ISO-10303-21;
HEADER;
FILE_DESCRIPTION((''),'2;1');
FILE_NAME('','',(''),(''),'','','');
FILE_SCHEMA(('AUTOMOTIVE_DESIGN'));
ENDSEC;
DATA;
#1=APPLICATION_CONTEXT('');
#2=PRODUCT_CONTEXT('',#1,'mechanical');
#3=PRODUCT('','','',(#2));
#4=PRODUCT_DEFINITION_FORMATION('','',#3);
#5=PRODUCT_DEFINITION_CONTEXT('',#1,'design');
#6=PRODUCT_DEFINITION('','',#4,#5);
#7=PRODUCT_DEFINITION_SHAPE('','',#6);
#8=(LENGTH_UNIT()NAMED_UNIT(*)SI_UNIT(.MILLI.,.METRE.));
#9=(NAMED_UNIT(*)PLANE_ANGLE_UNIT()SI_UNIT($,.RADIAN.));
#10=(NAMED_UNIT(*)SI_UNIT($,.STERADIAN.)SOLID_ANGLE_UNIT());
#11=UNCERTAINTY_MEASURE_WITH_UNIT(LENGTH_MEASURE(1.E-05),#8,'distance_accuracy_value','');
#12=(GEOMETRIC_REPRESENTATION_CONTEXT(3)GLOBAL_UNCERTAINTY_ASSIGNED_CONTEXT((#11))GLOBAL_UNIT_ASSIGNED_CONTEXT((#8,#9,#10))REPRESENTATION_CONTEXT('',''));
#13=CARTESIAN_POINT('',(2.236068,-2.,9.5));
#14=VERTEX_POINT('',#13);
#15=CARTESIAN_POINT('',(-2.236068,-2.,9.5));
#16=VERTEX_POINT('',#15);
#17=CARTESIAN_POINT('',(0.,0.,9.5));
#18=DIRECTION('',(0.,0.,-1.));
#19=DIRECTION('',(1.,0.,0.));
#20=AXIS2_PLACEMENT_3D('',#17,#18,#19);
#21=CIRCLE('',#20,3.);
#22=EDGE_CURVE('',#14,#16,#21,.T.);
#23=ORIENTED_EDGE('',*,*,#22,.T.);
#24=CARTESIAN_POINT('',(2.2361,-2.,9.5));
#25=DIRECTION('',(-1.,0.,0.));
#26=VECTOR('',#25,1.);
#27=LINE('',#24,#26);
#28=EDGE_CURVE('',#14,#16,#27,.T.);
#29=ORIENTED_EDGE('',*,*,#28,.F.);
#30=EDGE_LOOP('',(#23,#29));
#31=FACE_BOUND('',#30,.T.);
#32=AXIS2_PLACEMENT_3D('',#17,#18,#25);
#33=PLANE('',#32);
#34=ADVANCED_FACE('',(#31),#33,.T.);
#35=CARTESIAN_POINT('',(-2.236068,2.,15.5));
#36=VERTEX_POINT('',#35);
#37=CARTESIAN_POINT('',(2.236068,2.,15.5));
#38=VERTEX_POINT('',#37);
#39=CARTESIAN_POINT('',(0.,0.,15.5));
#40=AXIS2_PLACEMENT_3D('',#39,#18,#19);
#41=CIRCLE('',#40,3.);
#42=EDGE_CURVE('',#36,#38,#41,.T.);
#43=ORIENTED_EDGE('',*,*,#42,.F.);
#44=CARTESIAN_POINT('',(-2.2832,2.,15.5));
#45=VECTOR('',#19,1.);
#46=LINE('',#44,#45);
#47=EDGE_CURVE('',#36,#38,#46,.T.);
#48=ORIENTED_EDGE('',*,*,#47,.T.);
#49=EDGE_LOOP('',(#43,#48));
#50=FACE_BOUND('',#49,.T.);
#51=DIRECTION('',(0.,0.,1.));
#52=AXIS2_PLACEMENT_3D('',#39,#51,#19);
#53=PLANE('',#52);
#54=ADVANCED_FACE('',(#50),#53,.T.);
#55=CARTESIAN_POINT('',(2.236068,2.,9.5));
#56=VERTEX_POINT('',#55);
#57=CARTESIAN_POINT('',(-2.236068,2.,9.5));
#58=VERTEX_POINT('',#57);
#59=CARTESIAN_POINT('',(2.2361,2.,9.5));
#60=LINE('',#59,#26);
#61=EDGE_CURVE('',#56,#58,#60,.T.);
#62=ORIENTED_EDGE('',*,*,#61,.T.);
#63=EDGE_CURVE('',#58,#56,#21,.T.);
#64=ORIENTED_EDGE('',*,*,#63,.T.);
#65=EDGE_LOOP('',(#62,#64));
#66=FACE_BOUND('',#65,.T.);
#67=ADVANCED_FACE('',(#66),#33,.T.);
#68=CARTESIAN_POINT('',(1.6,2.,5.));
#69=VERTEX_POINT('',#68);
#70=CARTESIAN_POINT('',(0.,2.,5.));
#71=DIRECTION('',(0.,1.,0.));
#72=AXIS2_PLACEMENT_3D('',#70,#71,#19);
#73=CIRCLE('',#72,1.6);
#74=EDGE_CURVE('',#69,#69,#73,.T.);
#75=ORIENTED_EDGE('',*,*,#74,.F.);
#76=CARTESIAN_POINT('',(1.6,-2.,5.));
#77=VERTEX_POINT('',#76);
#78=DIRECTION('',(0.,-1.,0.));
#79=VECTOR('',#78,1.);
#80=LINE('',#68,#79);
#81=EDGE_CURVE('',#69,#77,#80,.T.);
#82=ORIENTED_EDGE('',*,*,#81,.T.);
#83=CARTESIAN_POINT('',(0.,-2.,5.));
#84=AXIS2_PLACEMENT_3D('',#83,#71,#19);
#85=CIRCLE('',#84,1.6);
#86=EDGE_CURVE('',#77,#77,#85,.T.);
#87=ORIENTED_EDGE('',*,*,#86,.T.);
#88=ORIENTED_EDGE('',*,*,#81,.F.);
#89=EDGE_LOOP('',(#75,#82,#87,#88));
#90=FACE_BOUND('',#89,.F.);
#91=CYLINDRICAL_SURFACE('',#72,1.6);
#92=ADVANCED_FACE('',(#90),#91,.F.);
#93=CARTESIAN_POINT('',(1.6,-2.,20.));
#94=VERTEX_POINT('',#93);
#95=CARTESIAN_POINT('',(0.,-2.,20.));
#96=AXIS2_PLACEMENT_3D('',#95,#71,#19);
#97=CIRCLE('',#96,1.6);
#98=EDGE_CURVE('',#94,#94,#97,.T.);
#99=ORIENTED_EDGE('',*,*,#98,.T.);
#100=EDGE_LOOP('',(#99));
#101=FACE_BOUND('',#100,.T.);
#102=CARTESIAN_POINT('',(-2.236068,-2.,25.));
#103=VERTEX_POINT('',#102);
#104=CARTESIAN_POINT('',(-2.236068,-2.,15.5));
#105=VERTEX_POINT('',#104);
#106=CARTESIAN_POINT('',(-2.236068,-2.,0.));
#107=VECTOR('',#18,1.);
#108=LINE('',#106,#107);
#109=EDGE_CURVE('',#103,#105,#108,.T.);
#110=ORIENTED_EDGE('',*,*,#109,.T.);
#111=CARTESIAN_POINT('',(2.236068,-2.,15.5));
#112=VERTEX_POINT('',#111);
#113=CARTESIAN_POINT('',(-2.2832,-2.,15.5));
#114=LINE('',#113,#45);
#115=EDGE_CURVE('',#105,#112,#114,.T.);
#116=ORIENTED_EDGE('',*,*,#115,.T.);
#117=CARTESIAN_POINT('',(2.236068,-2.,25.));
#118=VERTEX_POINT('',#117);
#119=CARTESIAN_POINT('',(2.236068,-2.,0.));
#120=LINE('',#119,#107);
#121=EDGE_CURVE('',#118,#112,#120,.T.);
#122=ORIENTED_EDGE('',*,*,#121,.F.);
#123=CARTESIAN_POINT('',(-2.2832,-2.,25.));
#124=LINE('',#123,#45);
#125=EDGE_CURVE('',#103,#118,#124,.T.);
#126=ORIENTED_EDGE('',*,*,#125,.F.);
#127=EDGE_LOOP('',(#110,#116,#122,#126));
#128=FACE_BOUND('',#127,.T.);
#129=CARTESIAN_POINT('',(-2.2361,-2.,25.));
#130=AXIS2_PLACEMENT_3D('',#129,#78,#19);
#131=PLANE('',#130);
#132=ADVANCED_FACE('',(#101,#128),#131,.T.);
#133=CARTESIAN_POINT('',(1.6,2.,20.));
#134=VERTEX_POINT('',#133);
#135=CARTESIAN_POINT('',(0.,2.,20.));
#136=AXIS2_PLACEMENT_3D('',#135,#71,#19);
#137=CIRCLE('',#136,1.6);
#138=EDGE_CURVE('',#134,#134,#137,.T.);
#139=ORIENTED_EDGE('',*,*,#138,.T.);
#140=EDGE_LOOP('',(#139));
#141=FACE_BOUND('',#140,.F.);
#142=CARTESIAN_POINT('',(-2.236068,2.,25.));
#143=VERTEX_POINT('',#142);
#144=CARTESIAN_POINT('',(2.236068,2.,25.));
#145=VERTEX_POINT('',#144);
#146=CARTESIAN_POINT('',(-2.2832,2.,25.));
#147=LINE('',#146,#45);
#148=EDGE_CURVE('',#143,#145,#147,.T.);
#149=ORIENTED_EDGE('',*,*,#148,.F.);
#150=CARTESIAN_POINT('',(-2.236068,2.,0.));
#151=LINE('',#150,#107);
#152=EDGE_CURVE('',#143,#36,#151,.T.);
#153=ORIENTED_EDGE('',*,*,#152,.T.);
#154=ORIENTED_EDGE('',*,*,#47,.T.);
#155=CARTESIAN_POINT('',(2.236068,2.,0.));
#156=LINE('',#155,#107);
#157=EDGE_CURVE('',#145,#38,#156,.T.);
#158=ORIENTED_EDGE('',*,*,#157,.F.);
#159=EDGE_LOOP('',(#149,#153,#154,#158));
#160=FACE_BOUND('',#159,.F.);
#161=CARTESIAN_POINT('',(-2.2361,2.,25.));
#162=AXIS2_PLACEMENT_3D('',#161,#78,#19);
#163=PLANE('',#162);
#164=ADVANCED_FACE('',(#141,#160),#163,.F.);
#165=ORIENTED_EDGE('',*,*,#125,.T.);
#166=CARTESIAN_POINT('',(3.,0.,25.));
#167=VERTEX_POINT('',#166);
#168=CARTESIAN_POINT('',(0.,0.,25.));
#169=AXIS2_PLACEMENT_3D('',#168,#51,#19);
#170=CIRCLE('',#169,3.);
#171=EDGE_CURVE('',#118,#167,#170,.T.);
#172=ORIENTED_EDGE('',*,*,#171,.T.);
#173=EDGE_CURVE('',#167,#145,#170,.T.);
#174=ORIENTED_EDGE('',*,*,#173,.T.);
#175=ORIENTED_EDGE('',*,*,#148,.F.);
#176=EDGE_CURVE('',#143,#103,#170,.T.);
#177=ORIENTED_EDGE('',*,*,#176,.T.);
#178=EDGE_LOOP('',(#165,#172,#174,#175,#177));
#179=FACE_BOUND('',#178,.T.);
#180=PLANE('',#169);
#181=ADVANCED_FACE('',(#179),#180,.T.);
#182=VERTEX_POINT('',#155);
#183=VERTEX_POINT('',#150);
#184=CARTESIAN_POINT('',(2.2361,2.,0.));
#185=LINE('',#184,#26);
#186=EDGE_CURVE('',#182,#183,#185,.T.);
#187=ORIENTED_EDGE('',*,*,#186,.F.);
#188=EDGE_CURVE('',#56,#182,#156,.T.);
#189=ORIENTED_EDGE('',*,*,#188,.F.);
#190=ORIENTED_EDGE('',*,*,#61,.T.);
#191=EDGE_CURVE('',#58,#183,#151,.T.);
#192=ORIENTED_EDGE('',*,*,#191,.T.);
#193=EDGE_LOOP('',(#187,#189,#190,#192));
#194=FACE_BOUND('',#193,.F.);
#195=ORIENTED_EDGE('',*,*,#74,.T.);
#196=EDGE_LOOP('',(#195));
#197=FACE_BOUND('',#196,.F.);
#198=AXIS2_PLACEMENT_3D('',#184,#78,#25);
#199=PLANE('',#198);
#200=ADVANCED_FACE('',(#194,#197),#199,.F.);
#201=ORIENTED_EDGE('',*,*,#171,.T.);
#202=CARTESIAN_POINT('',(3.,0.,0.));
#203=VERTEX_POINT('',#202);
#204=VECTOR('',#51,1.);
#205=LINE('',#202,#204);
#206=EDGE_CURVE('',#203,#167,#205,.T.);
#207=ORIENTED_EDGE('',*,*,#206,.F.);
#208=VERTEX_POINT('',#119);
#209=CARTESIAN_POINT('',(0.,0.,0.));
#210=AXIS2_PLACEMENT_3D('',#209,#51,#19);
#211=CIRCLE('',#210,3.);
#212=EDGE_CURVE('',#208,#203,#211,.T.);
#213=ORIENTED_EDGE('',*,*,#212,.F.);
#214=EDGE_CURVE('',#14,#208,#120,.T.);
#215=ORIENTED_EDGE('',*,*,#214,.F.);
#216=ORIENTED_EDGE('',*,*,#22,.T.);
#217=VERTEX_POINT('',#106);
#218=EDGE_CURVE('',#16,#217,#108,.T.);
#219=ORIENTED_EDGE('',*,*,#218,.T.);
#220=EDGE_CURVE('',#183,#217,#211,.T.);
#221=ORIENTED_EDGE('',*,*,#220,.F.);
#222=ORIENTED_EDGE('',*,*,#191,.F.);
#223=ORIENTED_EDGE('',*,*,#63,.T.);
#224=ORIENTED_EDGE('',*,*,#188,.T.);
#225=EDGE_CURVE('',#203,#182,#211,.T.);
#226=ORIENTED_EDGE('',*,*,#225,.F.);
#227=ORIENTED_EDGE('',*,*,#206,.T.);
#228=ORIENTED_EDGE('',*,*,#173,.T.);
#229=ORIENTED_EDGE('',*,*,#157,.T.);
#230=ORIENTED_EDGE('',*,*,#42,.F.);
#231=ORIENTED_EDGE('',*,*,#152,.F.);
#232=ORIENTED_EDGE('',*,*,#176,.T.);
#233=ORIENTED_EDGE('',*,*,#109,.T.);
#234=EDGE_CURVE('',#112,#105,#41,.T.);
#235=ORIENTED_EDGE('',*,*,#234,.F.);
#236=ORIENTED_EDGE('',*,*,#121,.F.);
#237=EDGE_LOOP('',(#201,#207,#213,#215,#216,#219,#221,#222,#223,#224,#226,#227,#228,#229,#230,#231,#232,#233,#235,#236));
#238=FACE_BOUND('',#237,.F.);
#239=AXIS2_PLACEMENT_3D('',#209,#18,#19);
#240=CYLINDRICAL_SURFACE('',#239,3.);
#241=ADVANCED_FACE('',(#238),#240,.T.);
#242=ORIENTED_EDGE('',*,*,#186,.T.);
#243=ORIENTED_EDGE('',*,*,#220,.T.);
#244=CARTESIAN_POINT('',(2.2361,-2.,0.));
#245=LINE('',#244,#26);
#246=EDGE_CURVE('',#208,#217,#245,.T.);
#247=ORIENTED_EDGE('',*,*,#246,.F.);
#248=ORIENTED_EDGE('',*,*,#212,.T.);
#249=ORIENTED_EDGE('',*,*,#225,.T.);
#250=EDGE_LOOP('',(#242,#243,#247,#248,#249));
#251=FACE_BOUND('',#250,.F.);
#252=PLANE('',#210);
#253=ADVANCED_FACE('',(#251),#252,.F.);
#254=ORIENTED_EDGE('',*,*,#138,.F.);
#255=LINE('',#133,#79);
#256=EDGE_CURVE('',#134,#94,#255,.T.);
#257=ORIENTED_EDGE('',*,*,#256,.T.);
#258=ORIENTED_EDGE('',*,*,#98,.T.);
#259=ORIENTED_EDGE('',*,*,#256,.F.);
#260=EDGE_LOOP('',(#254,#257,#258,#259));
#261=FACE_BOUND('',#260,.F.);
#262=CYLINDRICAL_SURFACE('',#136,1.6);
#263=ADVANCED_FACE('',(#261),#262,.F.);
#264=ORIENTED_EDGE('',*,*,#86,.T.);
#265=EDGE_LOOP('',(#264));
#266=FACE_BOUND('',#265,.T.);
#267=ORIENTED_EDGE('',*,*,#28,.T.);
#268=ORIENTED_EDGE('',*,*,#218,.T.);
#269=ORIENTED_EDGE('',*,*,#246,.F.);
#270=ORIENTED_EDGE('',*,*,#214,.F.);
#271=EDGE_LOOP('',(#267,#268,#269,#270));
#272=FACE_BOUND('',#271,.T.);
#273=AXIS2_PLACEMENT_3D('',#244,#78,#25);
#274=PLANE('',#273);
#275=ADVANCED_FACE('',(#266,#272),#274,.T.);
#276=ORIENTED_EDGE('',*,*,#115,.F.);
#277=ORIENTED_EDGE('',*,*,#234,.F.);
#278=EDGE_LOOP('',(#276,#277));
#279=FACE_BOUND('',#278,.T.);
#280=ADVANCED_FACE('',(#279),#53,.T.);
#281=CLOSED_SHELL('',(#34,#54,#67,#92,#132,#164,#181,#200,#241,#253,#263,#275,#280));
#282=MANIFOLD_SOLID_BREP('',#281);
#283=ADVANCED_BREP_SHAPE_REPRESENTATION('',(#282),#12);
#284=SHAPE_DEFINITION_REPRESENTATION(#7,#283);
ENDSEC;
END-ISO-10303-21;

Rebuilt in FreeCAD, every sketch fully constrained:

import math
import FreeCAD as App
import Part
import Sketcher

doc = App.newDocument("Part")
body = doc.addObject("PartDesign::Body", "Body")

# Sketch on XY plane
sketch1 = body.newObject("Sketcher::SketchObject", "Sketch")
sketch1.AttachmentSupport = (doc.getObject("XY_Plane"), [""])
sketch1.MapMode = "FlatFace"
sketch1.addGeometry(Part.Circle(App.Vector(0, 0, 0), App.Vector(0, 0, 1), 3), False)
sketch1.addConstraint([
    Sketcher.Constraint("Coincident", 0, 3, -1, 1),
    Sketcher.Constraint("Diameter", 0, 6.0),
])
pad1 = body.newObject("PartDesign::Pad", "Pad")
pad1.Profile = sketch1
pad1.Length = 25

# Sketch on XY plane
sketch2 = body.newObject("Sketcher::SketchObject", "Sketch001")
sketch2.AttachmentSupport = (doc.getObject("XY_Plane"), [""])
sketch2.MapMode = "FlatFace"
sketch2.AttachmentOffset = App.Placement(App.Vector(0, 0, 25), App.Rotation())
sketch2.addGeometry([
    Part.ArcOfCircle(Part.Circle(App.Vector(0, 0, 0), App.Vector(0, 0, 1), 3), math.radians(42), math.radians(138)),
    Part.LineSegment(App.Vector(-2.2, 2, 0), App.Vector(2.2, 2, 0)),
    Part.LineSegment(App.Vector(2.2, -2, 0), App.Vector(-2.2, -2, 0)),
    Part.ArcOfCircle(Part.Circle(App.Vector(0, 0, 0), App.Vector(0, 0, 1), 3), math.radians(-138), math.radians(-42)),
], False)
sketch2.addConstraint([
    Sketcher.Constraint("Coincident", 0, 1, 1, 2),
    Sketcher.Constraint("Coincident", 1, 1, 0, 2),
    Sketcher.Constraint("Coincident", 2, 1, 3, 2),
    Sketcher.Constraint("Coincident", 3, 1, 2, 2),
    Sketcher.Constraint("Horizontal", 1),
    Sketcher.Constraint("Horizontal", 2),
    Sketcher.Constraint("Coincident", 0, 3, -1, 1),
    Sketcher.Constraint("Coincident", 3, 3, -1, 1),
    Sketcher.Constraint("Equal", 0, 3),
    Sketcher.Constraint("Vertical", 0, 1, 2, 1),
    Sketcher.Constraint("Radius", 0, 3.0),
    Sketcher.Constraint("DistanceY", -1, 1, 0, 1, 2.0),
])
pocket1 = body.newObject("PartDesign::Pocket", "Pocket")
pocket1.Profile = sketch2
pocket1.Length = 9.5

# Sketch on XY plane
sketch3 = body.newObject("Sketcher::SketchObject", "Sketch002")
sketch3.AttachmentSupport = (doc.getObject("XY_Plane"), [""])
sketch3.MapMode = "FlatFace"
sketch3.addGeometry([
    Part.LineSegment(App.Vector(-2.2, -2, 0), App.Vector(2.2, -2, 0)),
    Part.ArcOfCircle(Part.Circle(App.Vector(0, 0, 0), App.Vector(0, 0, 1), 3), math.radians(-138), math.radians(-42)),
    Part.ArcOfCircle(Part.Circle(App.Vector(0, 0, 0), App.Vector(0, 0, 1), 3), math.radians(42), math.radians(138)),
    Part.LineSegment(App.Vector(2.2, 2, 0), App.Vector(-2.2, 2, 0)),
], False)
sketch3.addConstraint([
    Sketcher.Constraint("Coincident", 0, 1, 1, 1),
    Sketcher.Constraint("Coincident", 1, 2, 0, 2),
    Sketcher.Constraint("Coincident", 2, 1, 3, 1),
    Sketcher.Constraint("Coincident", 3, 2, 2, 2),
    Sketcher.Constraint("Horizontal", 0),
    Sketcher.Constraint("Horizontal", 3),
    Sketcher.Constraint("Coincident", 1, 3, -1, 1),
    Sketcher.Constraint("Coincident", 2, 3, -1, 1),
    Sketcher.Constraint("Equal", 1, 2),
    Sketcher.Constraint("Vertical", 1, 2, 2, 1),
    Sketcher.Constraint("DistanceY", 0, 1, -1, 1, 2.0),
    Sketcher.Constraint("Radius", 1, 3.0),
])
pocket2 = body.newObject("PartDesign::Pocket", "Pocket001")
pocket2.Profile = sketch3
pocket2.Length = 9.5
pocket2.Reversed = True

# Sketch on XZ plane
sketch4 = body.newObject("Sketcher::SketchObject", "Sketch003")
sketch4.AttachmentSupport = (doc.getObject("XZ_Plane"), [""])
sketch4.MapMode = "FlatFace"
sketch4.AttachmentOffset = App.Placement(App.Vector(0, 0, -2), App.Rotation())
sketch4.addGeometry([
    Part.Circle(App.Vector(0, 5, 0), App.Vector(0, 0, 1), 1.6),
    Part.Circle(App.Vector(0, 20, 0), App.Vector(0, 0, 1), 1.6),
], False)
sketch4.addConstraint([
    Sketcher.Constraint("Equal", 0, 1),
    Sketcher.Constraint("PointOnObject", 0, 3, -2),
    Sketcher.Constraint("PointOnObject", 1, 3, -2),
    Sketcher.Constraint("Diameter", 0, 3.2),
    Sketcher.Constraint("DistanceY", -1, 1, 0, 3, 5.0),
    Sketcher.Constraint("DistanceY", 0, 3, 1, 3, 15.0),
])
pocket3 = body.newObject("PartDesign::Pocket", "Pocket002")
pocket3.Profile = sketch4
pocket3.Type = "ThroughAll"
pocket3.Reversed = True

doc.recompute()
